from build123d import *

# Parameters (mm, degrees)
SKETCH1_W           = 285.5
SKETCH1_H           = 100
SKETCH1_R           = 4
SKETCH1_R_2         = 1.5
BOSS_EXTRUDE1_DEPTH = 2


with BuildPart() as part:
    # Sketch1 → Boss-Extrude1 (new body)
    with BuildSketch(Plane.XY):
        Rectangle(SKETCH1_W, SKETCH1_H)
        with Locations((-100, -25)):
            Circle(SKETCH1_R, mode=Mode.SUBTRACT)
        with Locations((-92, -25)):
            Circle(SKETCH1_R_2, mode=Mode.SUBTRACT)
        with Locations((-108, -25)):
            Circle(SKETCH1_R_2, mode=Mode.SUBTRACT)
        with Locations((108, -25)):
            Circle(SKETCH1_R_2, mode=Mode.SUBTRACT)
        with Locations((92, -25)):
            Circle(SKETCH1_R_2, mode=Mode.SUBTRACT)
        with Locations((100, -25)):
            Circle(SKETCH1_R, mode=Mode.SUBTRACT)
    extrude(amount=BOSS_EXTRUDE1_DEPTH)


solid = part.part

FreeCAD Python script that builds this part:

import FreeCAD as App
import Part
import Sketcher
from FreeCAD import Vector
Q = App.Units.Quantity

doc = App.newDocument("Part")
params = doc.addObject("Spreadsheet::Sheet", "Params")
for row, (alias, value) in enumerate([
    ("sketch1_diameter", "3 mm"),
    ("sketch1_diameter2", "8 mm"),
    ("sketch1_height", "100 mm"),
    ("sketch1_width", "285.5 mm"),
    ("pad1_length", "2 mm"),
], start=1):
    params.set(f"A{row}", alias)
    params.set(f"B{row}", "=" + value)
    params.setAlias(f"B{row}", alias)

body = doc.addObject("PartDesign::Body", "Body")

# Sketch on XY plane
sketch1 = body.newObject("Sketcher::SketchObject", "Sketch")
sketch1.AttachmentSupport = (doc.getObject("XY_Plane"), [""])
sketch1.MapMode = "FlatFace"
sketch1.addGeometry(Part.LineSegment(Vector(-142.75, 50, 0), Vector(-142.75, -50, 0)), False)
sketch1.addGeometry(Part.LineSegment(Vector(-142.75, -50, 0), Vector(142.75, -50, 0)), False)
sketch1.addGeometry(Part.LineSegment(Vector(142.75, -50, 0), Vector(142.75, 50, 0)), False)
sketch1.addGeometry(Part.LineSegment(Vector(142.75, 50, 0), Vector(-142.75, 50, 0)), False)
sketch1.addGeometry(Part.Circle(Vector(-108, -25, 0), Vector(0, 0, 1), 1.5), False)
sketch1.addGeometry(Part.Circle(Vector(-100, -25, 0), Vector(0, 0, 1), 4), False)
sketch1.addGeometry(Part.Circle(Vector(-92, -25, 0), Vector(0, 0, 1), 1.5), False)
sketch1.addGeometry(Part.Circle(Vector(92, -25, 0), Vector(0, 0, 1), 1.5), False)
sketch1.addGeometry(Part.Circle(Vector(100, -25, 0), Vector(0, 0, 1), 4), False)
sketch1.addGeometry(Part.Circle(Vector(108, -25, 0), Vector(0, 0, 1), 1.5), False)
sketch1.addConstraint(Sketcher.Constraint("Coincident", 0, 2, 1, 1))
sketch1.addConstraint(Sketcher.Constraint("Coincident", 1, 2, 2, 1))
sketch1.addConstraint(Sketcher.Constraint("Coincident", 2, 2, 3, 1))
sketch1.addConstraint(Sketcher.Constraint("Coincident", 3, 2, 0, 1))
sketch1.addConstraint(Sketcher.Constraint("Vertical", 0))
sketch1.addConstraint(Sketcher.Constraint("Horizontal", 1))
sketch1.addConstraint(Sketcher.Constraint("Vertical", 2))
sketch1.addConstraint(Sketcher.Constraint("Horizontal", 3))
sketch1.addConstraint(Sketcher.Constraint("Equal", 4, 6))
sketch1.addConstraint(Sketcher.Constraint("Equal", 6, 7))
sketch1.addConstraint(Sketcher.Constraint("Equal", 5, 8))
sketch1.addConstraint(Sketcher.Constraint("Equal", 7, 9))
sketch1.addConstraint(Sketcher.Constraint("Symmetric", 0, 2, 2, 2, -1, 1))
sketch1.addConstraint(Sketcher.Constraint("Symmetric", 6, 3, 7, 3, -2))
sketch1.addConstraint(Sketcher.Constraint("Symmetric", 5, 3, 8, 3, -2))
sketch1.addConstraint(Sketcher.Constraint("Symmetric", 4, 3, 9, 3, -2))
sketch1.addConstraint(Sketcher.Constraint("Horizontal", 4, 3, 5, 3))
sketch1.addConstraint(Sketcher.Constraint("Horizontal", 5, 3, 6, 3))
sketch1.addConstraint(Sketcher.Constraint("Diameter", 4, Q("3 mm")))
sketch1.addConstraint(Sketcher.Constraint("Diameter", 5, Q("8 mm")))
sketch1.addConstraint(Sketcher.Constraint("DistanceY", 0, 2, 0, 1, Q("100 mm")))
sketch1.addConstraint(Sketcher.Constraint("DistanceX", 1, 1, 1, 2, Q("285.5 mm")))
sketch1.addConstraint(Sketcher.Constraint("DistanceX", 4, 3, -1, 1, Q("108 mm")))
sketch1.addConstraint(Sketcher.Constraint("DistanceY", 4, 3, -1, 1, Q("25 mm")))
sketch1.addConstraint(Sketcher.Constraint("DistanceX", 5, 3, -1, 1, Q("100 mm")))
sketch1.addConstraint(Sketcher.Constraint("DistanceX", 6, 3, -1, 1, Q("92 mm")))
sketch1.setExpression("Constraints[18]", "Params.sketch1_diameter")
sketch1.setExpression("Constraints[19]", "Params.sketch1_diameter2")
sketch1.setExpression("Constraints[20]", "Params.sketch1_height")
sketch1.setExpression("Constraints[21]", "Params.sketch1_width")
pad1 = body.newObject("PartDesign::Pad", "Pad")
pad1.Profile = sketch1
pad1.setExpression("Length", "Params.pad1_length")

doc.recompute()
